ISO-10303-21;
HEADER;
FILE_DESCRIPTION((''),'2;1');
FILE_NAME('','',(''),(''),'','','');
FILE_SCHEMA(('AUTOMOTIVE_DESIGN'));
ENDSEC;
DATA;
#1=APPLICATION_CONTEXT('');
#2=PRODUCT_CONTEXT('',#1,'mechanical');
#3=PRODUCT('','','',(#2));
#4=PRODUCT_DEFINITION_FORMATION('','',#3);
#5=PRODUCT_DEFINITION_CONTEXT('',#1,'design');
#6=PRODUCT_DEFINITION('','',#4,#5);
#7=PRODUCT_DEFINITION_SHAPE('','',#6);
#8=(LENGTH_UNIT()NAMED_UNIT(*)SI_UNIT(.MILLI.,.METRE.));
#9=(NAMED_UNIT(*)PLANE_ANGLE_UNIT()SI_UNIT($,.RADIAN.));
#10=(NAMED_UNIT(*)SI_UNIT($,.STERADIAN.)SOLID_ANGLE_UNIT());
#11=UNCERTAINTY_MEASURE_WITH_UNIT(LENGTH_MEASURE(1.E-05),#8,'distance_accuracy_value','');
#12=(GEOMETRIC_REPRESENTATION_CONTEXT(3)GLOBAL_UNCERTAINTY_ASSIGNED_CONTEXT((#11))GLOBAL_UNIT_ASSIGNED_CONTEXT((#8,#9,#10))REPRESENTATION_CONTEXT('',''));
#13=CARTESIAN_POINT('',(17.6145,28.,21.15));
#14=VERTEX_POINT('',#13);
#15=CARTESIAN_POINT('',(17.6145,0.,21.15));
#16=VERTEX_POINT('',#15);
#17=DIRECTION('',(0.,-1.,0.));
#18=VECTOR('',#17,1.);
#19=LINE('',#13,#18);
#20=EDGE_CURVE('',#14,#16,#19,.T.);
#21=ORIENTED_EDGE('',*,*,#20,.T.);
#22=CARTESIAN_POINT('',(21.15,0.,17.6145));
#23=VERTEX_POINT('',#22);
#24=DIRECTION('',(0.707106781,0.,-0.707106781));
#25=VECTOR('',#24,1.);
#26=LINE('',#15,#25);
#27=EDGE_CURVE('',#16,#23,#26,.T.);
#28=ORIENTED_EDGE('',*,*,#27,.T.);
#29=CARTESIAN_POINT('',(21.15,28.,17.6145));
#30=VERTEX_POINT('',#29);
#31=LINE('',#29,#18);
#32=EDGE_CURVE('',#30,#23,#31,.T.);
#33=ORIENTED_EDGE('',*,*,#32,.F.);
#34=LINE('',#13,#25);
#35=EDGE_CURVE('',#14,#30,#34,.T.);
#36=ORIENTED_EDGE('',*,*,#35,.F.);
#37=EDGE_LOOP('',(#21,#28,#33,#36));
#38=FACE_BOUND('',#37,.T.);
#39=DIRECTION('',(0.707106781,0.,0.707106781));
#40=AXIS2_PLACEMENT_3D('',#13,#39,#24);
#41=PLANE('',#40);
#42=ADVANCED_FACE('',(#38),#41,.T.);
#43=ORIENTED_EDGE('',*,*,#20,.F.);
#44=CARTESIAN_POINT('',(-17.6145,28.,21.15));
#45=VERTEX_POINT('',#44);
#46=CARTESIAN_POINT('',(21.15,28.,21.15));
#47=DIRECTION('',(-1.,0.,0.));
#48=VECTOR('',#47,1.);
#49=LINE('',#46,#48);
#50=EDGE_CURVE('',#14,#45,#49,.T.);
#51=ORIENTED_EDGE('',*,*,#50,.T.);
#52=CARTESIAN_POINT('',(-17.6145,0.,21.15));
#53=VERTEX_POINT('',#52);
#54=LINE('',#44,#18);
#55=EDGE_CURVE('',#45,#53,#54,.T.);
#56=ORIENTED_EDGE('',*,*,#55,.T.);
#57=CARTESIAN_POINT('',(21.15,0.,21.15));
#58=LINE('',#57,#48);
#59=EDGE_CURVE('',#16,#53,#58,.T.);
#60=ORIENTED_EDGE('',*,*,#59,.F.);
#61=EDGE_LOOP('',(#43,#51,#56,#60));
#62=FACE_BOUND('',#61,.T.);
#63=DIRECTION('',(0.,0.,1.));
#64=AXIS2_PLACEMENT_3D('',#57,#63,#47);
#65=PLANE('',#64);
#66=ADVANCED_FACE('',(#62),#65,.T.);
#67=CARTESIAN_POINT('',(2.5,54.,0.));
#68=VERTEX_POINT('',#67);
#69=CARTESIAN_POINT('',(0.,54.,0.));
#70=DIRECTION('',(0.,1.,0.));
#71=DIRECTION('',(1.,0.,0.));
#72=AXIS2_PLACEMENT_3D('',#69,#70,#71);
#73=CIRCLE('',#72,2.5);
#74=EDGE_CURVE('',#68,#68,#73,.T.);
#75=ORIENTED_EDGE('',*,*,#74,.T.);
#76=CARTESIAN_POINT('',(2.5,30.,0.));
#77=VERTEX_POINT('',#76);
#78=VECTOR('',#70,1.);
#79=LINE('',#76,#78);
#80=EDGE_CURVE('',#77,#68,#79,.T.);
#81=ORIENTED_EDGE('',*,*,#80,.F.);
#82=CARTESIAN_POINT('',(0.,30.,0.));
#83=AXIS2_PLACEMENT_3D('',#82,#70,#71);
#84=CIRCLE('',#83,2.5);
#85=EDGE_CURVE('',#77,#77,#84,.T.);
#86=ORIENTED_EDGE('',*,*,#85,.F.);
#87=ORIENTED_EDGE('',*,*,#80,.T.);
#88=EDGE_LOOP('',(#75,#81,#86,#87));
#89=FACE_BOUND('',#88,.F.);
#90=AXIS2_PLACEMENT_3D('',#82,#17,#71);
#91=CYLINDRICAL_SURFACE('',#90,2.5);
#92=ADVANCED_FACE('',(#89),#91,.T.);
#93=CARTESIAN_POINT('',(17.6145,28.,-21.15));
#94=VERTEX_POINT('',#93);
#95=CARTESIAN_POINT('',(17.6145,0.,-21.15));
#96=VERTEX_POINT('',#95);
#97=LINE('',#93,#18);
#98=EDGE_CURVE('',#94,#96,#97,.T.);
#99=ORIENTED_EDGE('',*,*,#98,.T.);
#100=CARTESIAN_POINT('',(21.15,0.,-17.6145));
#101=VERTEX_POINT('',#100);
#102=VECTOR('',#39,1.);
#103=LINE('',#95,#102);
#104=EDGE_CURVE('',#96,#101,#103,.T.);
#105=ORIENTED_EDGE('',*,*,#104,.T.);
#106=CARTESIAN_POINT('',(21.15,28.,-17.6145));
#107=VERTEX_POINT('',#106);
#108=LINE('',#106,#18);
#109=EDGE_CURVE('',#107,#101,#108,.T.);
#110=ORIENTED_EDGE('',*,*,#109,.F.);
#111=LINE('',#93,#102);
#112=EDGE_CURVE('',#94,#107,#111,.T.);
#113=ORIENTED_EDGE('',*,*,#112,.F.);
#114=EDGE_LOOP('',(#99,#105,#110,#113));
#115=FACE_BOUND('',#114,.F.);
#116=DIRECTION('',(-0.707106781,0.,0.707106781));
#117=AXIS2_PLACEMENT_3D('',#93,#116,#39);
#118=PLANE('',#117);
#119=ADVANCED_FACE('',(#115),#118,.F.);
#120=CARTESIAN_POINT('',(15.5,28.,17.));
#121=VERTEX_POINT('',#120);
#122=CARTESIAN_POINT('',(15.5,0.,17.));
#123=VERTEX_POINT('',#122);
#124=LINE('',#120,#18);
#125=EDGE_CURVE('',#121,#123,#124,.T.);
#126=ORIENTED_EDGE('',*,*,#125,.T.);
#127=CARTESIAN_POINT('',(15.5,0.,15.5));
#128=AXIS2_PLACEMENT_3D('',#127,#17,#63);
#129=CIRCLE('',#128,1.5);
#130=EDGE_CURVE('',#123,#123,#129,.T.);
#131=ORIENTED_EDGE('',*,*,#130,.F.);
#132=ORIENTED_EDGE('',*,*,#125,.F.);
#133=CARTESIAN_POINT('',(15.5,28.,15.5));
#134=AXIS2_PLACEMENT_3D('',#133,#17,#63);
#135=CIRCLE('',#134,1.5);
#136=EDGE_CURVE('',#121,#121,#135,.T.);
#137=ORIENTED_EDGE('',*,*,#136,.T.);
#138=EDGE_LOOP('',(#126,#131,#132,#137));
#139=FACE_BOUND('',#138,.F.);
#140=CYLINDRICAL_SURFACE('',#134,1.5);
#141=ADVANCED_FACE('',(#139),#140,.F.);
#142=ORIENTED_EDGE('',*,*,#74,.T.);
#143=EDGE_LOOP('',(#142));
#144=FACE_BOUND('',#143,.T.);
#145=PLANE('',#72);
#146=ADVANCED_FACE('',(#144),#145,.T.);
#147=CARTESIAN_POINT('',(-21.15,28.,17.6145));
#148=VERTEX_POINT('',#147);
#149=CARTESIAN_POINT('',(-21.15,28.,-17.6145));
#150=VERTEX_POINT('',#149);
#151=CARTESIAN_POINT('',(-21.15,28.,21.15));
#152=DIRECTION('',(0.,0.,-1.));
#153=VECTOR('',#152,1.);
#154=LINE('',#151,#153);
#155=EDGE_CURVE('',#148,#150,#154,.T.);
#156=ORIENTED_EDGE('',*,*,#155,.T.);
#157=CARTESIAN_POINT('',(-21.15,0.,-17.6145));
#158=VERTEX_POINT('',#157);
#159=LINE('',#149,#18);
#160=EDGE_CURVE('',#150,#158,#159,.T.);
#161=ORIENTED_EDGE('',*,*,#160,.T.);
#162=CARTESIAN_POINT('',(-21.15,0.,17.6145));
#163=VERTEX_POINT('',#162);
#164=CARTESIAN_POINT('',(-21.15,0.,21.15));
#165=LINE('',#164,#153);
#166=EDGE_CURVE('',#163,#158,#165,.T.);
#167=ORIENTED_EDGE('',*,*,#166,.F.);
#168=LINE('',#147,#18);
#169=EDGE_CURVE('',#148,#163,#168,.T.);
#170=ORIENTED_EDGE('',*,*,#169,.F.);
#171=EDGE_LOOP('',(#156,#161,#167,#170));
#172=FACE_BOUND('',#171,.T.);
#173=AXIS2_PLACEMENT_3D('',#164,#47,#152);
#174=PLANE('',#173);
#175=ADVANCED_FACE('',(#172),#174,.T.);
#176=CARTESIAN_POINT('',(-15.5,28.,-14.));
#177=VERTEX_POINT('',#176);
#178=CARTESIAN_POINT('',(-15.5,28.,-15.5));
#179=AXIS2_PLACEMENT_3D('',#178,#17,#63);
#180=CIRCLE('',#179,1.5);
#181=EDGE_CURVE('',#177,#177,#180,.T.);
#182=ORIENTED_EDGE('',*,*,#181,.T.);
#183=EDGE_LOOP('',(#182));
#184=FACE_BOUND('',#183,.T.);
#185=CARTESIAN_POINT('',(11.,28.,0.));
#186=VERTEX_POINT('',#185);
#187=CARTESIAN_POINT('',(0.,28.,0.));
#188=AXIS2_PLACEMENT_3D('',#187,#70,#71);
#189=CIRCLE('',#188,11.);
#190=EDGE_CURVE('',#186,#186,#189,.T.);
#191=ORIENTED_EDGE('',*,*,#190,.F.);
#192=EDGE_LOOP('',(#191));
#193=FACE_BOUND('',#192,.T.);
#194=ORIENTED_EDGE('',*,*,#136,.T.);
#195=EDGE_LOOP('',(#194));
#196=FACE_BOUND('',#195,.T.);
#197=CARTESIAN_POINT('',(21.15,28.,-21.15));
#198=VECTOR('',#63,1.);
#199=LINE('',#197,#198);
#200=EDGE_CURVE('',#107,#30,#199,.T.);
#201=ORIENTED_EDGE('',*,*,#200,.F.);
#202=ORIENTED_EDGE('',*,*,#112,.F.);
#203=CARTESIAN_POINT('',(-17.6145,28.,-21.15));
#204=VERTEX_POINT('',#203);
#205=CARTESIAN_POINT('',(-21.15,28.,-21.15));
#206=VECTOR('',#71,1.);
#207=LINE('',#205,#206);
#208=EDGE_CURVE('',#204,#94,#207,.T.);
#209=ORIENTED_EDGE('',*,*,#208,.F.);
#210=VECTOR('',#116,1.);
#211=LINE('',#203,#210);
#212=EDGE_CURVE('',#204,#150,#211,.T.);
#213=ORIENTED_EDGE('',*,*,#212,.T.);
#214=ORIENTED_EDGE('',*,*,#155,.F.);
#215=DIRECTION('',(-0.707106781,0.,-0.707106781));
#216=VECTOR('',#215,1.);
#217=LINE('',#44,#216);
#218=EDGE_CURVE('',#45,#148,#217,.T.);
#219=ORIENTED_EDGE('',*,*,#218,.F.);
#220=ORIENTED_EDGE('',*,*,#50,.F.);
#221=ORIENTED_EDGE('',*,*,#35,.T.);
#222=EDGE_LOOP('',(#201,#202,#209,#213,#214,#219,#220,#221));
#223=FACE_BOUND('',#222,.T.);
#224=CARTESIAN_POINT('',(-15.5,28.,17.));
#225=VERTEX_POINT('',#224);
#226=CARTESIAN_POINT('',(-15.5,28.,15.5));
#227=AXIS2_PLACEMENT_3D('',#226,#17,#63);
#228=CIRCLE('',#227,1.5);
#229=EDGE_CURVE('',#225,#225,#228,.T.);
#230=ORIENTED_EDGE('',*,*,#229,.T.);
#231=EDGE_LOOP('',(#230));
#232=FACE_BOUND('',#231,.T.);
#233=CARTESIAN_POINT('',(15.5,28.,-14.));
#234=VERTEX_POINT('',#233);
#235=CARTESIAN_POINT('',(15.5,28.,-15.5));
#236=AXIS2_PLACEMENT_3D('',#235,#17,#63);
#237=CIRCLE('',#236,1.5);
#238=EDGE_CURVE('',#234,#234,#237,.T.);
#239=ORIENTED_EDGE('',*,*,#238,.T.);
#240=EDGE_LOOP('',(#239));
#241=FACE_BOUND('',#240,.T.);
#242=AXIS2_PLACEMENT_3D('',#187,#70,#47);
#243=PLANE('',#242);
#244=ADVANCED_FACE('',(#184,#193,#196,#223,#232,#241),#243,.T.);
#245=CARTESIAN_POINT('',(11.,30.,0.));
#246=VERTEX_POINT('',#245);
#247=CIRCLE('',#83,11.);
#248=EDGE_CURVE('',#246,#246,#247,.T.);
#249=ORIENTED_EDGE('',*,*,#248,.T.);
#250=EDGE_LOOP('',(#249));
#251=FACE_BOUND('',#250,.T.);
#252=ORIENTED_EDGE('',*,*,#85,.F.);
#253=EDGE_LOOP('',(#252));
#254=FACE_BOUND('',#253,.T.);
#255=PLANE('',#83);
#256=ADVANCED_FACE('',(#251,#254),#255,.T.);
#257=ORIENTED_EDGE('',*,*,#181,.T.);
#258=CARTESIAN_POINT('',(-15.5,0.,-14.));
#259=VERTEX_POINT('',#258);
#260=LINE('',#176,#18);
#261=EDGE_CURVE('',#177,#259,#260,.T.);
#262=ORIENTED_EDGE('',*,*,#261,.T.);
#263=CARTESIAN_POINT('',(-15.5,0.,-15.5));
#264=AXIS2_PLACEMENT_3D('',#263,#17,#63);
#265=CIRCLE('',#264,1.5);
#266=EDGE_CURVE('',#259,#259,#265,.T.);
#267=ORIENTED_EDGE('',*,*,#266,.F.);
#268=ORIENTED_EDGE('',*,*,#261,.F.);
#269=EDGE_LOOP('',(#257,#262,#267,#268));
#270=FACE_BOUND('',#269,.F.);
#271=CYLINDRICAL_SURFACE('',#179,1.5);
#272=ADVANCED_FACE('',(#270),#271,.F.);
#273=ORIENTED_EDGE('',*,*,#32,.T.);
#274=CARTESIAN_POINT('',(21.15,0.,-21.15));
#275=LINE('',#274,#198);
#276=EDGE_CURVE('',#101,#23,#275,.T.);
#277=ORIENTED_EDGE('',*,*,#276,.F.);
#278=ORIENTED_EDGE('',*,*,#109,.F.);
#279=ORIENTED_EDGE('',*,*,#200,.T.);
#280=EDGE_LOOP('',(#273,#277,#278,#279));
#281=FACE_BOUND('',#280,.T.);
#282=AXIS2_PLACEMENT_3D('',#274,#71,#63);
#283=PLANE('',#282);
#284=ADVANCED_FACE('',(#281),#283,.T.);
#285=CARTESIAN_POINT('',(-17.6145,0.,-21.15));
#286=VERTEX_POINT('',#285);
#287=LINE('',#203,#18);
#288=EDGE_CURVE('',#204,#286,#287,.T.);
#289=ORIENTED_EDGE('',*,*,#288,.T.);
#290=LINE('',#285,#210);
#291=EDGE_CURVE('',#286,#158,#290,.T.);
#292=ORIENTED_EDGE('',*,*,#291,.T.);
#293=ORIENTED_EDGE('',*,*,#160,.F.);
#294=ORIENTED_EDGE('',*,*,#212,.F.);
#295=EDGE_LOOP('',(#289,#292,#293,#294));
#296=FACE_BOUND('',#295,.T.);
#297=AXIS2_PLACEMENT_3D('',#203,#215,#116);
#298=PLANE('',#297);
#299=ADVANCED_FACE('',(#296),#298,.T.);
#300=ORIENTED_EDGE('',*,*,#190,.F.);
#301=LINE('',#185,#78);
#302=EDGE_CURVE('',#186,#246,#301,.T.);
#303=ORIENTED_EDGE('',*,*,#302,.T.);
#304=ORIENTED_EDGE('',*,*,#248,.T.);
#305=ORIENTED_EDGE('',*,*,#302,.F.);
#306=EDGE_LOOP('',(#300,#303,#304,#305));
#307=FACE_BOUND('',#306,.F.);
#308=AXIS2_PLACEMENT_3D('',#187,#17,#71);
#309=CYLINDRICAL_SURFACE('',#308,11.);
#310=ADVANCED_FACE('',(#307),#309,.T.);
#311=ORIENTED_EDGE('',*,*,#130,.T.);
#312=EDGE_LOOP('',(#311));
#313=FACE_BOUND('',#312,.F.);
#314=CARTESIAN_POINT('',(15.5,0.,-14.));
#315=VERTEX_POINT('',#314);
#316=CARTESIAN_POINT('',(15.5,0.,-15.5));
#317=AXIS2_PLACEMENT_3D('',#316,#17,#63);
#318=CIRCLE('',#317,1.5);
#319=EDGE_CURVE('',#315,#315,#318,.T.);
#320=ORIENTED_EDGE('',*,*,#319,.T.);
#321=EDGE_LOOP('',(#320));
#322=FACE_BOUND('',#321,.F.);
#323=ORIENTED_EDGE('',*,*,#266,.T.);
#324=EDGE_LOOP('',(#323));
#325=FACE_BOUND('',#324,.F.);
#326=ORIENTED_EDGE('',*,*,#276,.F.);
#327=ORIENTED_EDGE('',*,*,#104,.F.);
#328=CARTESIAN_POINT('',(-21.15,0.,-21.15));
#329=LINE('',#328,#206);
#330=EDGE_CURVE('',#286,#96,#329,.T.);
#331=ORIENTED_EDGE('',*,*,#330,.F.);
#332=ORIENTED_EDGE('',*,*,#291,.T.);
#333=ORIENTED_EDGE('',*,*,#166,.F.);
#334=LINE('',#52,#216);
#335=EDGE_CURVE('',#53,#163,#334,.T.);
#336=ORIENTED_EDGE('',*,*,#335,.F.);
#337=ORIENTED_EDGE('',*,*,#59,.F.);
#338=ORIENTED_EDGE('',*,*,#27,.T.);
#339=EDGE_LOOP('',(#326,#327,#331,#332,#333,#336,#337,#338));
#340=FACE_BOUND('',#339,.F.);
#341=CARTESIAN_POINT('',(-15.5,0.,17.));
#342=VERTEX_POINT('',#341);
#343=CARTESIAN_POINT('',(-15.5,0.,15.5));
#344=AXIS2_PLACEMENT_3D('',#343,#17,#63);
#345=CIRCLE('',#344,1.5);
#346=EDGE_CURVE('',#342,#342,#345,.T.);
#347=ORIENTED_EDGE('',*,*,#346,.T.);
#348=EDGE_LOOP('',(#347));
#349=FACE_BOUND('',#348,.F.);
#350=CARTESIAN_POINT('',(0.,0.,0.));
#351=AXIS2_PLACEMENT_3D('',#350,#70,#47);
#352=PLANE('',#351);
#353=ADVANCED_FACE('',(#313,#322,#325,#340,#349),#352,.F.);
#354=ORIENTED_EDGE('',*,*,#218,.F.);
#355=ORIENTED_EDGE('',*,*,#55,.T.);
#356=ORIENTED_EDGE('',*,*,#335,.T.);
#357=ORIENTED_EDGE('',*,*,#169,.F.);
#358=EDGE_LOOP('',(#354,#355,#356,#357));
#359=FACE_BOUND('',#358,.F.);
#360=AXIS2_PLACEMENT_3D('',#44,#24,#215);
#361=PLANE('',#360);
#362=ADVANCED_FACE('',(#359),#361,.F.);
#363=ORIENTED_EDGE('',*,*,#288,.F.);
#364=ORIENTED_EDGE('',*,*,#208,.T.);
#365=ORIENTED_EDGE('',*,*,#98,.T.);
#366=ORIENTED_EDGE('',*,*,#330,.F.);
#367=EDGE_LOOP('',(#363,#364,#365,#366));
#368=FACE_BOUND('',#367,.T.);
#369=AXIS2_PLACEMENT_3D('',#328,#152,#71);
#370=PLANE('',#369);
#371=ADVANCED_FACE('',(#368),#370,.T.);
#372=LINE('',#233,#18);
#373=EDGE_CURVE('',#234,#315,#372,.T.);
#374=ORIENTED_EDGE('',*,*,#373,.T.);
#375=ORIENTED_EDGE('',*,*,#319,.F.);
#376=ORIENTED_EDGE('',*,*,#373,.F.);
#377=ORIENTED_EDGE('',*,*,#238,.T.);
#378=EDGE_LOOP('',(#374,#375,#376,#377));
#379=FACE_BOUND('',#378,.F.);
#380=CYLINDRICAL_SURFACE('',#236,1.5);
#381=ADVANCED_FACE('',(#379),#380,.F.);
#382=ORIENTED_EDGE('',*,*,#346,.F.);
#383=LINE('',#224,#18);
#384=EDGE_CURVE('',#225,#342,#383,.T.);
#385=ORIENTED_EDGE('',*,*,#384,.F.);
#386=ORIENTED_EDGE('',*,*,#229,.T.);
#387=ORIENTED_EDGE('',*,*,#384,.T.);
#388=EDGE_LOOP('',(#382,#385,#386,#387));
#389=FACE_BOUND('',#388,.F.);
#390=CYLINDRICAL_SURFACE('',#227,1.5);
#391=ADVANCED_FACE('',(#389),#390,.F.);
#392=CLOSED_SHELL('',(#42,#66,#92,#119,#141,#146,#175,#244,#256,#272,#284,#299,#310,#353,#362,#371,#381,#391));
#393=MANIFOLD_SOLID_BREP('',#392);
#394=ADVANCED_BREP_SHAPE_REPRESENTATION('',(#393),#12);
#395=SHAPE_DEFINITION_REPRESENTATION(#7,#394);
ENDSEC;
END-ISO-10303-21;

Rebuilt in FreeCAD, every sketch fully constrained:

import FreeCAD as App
import Part
import Sketcher

V = App.Vector

doc = App.newDocument("Part")
body = doc.addObject("PartDesign::Body", "Body")

sketch1 = body.newObject("Sketcher::SketchObject", "Sketch")
sketch1.AttachmentSupport = (doc.getObject("XZ_Plane"), [""])
sketch1.MapMode = "FlatFace"
sketch1.addGeometry([
    Part.LineSegment(V(-21, 21, 0), V(21, 21, 0)),
    Part.LineSegment(V(21, 21, 0), V(21, -21, 0)),
    Part.LineSegment(V(21, -21, 0), V(-21, -21, 0)),
    Part.LineSegment(V(-21, -21, 0), V(-21, 21, 0)),
], False)
sketch1.addConstraint([
    Sketcher.Constraint("Coincident", 0, 2, 1, 1),
    Sketcher.Constraint("Coincident", 1, 2, 2, 1),
    Sketcher.Constraint("Coincident", 2, 2, 3, 1),
    Sketcher.Constraint("Coincident", 3, 2, 0, 1),
    Sketcher.Constraint("Horizontal", 0),
    Sketcher.Constraint("Vertical", 1),
    Sketcher.Constraint("Horizontal", 2),
    Sketcher.Constraint("Vertical", 3),
    Sketcher.Constraint("Symmetric", 0, 2, 2, 2, -1, 1),
    Sketcher.Constraint("Equal", 2, 1),
    Sketcher.Constraint("DistanceX", 0, 1, 0, 2, 42.3),
])
pad1 = body.newObject("PartDesign::Pad", "Pad")
pad1.Profile = sketch1
pad1.Length = 28
pad1.Reversed = True

sketch2 = body.newObject("Sketcher::SketchObject", "Sketch001")
sketch2.AttachmentSupport = (doc.getObject("XZ_Plane"), [""])
sketch2.MapMode = "FlatFace"
sketch2.AttachmentOffset = App.Placement(V(0, 0, -28), App.Rotation())
sketch2.addGeometry(Part.Circle(V(0, 0, 0), V(0, 0, 1), 11), False)
sketch2.addConstraint([
    Sketcher.Constraint("Coincident", 0, 3, -1, 1),
    Sketcher.Constraint("Diameter", 0, 22.0),
])
pad2 = body.newObject("PartDesign::Pad", "Pad001")
pad2.Profile = sketch2
pad2.Length = 2
pad2.Reversed = True

sketch3 = body.newObject("Sketcher::SketchObject", "Sketch002")
sketch3.AttachmentSupport = (doc.getObject("XZ_Plane"), [""])
sketch3.MapMode = "FlatFace"
sketch3.AttachmentOffset = App.Placement(V(0, 0, -28), App.Rotation())
sketch3.addGeometry([
    Part.Circle(V(-15.5, 15.5, 0), V(0, 0, 1), 1.5),
    Part.Circle(V(-15.5, -15.5, 0), V(0, 0, 1), 1.5),
    Part.Circle(V(15.5, 15.5, 0), V(0, 0, 1), 1.5),
    Part.Circle(V(15.5, -15.5, 0), V(0, 0, 1), 1.5),
], False)
sketch3.addConstraint([
    Sketcher.Constraint("Equal", 0, 1),
    Sketcher.Constraint("Equal", 1, 2),
    Sketcher.Constraint("Equal", 2, 3),
    Sketcher.Constraint("Symmetric", 1, 3, 2, 3, -1, 1),
    Sketcher.Constraint("Symmetric", 0, 3, 3, 3, -1, 1),
    Sketcher.Constraint("Symmetric", 0, 3, 2, 3, -2),
    Sketcher.Constraint("Diameter", 0, 3.0),
    Sketcher.Constraint("DistanceY", 1, 3, 0, 3, 31.0),
    Sketcher.Constraint("DistanceX", 0, 3, 2, 3, 31.0),
])
doc.recompute()
hole = body.newObject("PartDesign::Hole", "Hole")
hole.Profile = sketch3
hole.ThreadType = "None"
hole.Diameter = 3
hole.DepthType = "ThroughAll"
hole.Reversed = True

sketch4 = body.newObject("Sketcher::SketchObject", "Sketch003")
sketch4.AttachmentSupport = (doc.getObject("XZ_Plane"), [""])
sketch4.MapMode = "FlatFace"
sketch4.AttachmentOffset = App.Placement(V(0, 0, -30), App.Rotation())
sketch4.addGeometry(Part.Circle(V(0, 0, 0), V(0, 0, 1), 2.5), False)
sketch4.addConstraint([
    Sketcher.Constraint("Coincident", 0, 3, -1, 1),
    Sketcher.Constraint("Diameter", 0, 5.0),
])
pad3 = body.newObject("PartDesign::Pad", "Pad002")
pad3.Profile = sketch4
pad3.Length = 24
pad3.Reversed = True

sketch5 = body.newObject("Sketcher::SketchObject", "Sketch004")
sketch5.AttachmentSupport = (doc.getObject("XZ_Plane"), [""])
sketch5.MapMode = "FlatFace"
sketch5.AttachmentOffset = App.Placement(V(0, 0, -28), App.Rotation())
sketch5.addGeometry([
    Part.LineSegment(V(-21.1, 21.1, 0), V(-17.6, 21.1, 0)),
    Part.LineSegment(V(-17.6, 21.1, 0), V(-21.1, 17.6, 0)),
    Part.LineSegment(V(-21.1, 17.6, 0), V(-21.1, 21.1, 0)),
    Part.LineSegment(V(21.1, -21.1, 0), V(17.6, -21.1, 0)),
    Part.LineSegment(V(17.6, -21.1, 0), V(21.1, -17.6, 0)),
    Part.LineSegment(V(21.1, -17.6, 0), V(21.1, -21.1, 0)),
    Part.LineSegment(V(-21.1, -21.1, 0), V(-21.1, -17.6, 0)),
    Part.LineSegment(V(-21.1, -17.6, 0), V(-17.6, -21.1, 0)),
    Part.LineSegment(V(-17.6, -21.1, 0), V(-21.1, -21.1, 0)),
    Part.LineSegment(V(21.1, 17.6, 0), V(17.6, 21.1, 0)),
    Part.LineSegment(V(17.6, 21.1, 0), V(21.1, 21.1, 0)),
    Part.LineSegment(V(21.1, 21.1, 0), V(21.1, 17.6, 0)),
], False)
sketch5.addConstraint([
    Sketcher.Constraint("Coincident", 0, 2, 1, 1),
    Sketcher.Constraint("Coincident", 1, 2, 2, 1),
    Sketcher.Constraint("Coincident", 2, 2, 0, 1),
    Sketcher.Constraint("Coincident", 3, 2, 4, 1),
    Sketcher.Constraint("Coincident", 4, 2, 5, 1),
    Sketcher.Constraint("Coincident", 5, 2, 3, 1),
    Sketcher.Constraint("Coincident", 6, 2, 7, 1),
    Sketcher.Constraint("Coincident", 7, 2, 8, 1),
    Sketcher.Constraint("Coincident", 8, 2, 6, 1),
    Sketcher.Constraint("Coincident", 9, 2, 10, 1),
    Sketcher.Constraint("Coincident", 10, 2, 11, 1),
    Sketcher.Constraint("Coincident", 11, 2, 9, 1),
    Sketcher.Constraint("Horizontal", 0),
    Sketcher.Constraint("Vertical", 2),
    Sketcher.Constraint("Horizontal", 3),
    Sketcher.Constraint("Vertical", 5),
    Sketcher.Constraint("Vertical", 6),
    Sketcher.Constraint("Horizontal", 8),
    Sketcher.Constraint("Horizontal", 10),
    Sketcher.Constraint("Vertical", 11),
    Sketcher.Constraint("Symmetric", 0, 2, 3, 2, -1, 1),
    Sketcher.Constraint("Symmetric", 1, 2, 4, 2, -1, 1),
    Sketcher.Constraint("Symmetric", 7, 2, 9, 2, -1, 1),
    Sketcher.Constraint("Symmetric", 6, 2, 11, 2, -1, 1),
    Sketcher.Constraint("Symmetric", 4, 2, 6, 2, -2),
    Sketcher.Constraint("Symmetric", 3, 2, 7, 2, -2),
    Sketcher.Constraint("Perpendicular", 4, 7),
    Sketcher.Constraint("Distance", 1, 5.0),
    Sketcher.Constraint("DistanceY", 3, 2, 0, 2, 42.3),
    Sketcher.Constraint("DistanceX", 1, 2, 4, 2, 42.3),
])
pocket1 = body.newObject("PartDesign::Pocket", "Pocket")
pocket1.Profile = sketch5
pocket1.Length = 28
pocket1.Reversed = True

doc.recompute()
